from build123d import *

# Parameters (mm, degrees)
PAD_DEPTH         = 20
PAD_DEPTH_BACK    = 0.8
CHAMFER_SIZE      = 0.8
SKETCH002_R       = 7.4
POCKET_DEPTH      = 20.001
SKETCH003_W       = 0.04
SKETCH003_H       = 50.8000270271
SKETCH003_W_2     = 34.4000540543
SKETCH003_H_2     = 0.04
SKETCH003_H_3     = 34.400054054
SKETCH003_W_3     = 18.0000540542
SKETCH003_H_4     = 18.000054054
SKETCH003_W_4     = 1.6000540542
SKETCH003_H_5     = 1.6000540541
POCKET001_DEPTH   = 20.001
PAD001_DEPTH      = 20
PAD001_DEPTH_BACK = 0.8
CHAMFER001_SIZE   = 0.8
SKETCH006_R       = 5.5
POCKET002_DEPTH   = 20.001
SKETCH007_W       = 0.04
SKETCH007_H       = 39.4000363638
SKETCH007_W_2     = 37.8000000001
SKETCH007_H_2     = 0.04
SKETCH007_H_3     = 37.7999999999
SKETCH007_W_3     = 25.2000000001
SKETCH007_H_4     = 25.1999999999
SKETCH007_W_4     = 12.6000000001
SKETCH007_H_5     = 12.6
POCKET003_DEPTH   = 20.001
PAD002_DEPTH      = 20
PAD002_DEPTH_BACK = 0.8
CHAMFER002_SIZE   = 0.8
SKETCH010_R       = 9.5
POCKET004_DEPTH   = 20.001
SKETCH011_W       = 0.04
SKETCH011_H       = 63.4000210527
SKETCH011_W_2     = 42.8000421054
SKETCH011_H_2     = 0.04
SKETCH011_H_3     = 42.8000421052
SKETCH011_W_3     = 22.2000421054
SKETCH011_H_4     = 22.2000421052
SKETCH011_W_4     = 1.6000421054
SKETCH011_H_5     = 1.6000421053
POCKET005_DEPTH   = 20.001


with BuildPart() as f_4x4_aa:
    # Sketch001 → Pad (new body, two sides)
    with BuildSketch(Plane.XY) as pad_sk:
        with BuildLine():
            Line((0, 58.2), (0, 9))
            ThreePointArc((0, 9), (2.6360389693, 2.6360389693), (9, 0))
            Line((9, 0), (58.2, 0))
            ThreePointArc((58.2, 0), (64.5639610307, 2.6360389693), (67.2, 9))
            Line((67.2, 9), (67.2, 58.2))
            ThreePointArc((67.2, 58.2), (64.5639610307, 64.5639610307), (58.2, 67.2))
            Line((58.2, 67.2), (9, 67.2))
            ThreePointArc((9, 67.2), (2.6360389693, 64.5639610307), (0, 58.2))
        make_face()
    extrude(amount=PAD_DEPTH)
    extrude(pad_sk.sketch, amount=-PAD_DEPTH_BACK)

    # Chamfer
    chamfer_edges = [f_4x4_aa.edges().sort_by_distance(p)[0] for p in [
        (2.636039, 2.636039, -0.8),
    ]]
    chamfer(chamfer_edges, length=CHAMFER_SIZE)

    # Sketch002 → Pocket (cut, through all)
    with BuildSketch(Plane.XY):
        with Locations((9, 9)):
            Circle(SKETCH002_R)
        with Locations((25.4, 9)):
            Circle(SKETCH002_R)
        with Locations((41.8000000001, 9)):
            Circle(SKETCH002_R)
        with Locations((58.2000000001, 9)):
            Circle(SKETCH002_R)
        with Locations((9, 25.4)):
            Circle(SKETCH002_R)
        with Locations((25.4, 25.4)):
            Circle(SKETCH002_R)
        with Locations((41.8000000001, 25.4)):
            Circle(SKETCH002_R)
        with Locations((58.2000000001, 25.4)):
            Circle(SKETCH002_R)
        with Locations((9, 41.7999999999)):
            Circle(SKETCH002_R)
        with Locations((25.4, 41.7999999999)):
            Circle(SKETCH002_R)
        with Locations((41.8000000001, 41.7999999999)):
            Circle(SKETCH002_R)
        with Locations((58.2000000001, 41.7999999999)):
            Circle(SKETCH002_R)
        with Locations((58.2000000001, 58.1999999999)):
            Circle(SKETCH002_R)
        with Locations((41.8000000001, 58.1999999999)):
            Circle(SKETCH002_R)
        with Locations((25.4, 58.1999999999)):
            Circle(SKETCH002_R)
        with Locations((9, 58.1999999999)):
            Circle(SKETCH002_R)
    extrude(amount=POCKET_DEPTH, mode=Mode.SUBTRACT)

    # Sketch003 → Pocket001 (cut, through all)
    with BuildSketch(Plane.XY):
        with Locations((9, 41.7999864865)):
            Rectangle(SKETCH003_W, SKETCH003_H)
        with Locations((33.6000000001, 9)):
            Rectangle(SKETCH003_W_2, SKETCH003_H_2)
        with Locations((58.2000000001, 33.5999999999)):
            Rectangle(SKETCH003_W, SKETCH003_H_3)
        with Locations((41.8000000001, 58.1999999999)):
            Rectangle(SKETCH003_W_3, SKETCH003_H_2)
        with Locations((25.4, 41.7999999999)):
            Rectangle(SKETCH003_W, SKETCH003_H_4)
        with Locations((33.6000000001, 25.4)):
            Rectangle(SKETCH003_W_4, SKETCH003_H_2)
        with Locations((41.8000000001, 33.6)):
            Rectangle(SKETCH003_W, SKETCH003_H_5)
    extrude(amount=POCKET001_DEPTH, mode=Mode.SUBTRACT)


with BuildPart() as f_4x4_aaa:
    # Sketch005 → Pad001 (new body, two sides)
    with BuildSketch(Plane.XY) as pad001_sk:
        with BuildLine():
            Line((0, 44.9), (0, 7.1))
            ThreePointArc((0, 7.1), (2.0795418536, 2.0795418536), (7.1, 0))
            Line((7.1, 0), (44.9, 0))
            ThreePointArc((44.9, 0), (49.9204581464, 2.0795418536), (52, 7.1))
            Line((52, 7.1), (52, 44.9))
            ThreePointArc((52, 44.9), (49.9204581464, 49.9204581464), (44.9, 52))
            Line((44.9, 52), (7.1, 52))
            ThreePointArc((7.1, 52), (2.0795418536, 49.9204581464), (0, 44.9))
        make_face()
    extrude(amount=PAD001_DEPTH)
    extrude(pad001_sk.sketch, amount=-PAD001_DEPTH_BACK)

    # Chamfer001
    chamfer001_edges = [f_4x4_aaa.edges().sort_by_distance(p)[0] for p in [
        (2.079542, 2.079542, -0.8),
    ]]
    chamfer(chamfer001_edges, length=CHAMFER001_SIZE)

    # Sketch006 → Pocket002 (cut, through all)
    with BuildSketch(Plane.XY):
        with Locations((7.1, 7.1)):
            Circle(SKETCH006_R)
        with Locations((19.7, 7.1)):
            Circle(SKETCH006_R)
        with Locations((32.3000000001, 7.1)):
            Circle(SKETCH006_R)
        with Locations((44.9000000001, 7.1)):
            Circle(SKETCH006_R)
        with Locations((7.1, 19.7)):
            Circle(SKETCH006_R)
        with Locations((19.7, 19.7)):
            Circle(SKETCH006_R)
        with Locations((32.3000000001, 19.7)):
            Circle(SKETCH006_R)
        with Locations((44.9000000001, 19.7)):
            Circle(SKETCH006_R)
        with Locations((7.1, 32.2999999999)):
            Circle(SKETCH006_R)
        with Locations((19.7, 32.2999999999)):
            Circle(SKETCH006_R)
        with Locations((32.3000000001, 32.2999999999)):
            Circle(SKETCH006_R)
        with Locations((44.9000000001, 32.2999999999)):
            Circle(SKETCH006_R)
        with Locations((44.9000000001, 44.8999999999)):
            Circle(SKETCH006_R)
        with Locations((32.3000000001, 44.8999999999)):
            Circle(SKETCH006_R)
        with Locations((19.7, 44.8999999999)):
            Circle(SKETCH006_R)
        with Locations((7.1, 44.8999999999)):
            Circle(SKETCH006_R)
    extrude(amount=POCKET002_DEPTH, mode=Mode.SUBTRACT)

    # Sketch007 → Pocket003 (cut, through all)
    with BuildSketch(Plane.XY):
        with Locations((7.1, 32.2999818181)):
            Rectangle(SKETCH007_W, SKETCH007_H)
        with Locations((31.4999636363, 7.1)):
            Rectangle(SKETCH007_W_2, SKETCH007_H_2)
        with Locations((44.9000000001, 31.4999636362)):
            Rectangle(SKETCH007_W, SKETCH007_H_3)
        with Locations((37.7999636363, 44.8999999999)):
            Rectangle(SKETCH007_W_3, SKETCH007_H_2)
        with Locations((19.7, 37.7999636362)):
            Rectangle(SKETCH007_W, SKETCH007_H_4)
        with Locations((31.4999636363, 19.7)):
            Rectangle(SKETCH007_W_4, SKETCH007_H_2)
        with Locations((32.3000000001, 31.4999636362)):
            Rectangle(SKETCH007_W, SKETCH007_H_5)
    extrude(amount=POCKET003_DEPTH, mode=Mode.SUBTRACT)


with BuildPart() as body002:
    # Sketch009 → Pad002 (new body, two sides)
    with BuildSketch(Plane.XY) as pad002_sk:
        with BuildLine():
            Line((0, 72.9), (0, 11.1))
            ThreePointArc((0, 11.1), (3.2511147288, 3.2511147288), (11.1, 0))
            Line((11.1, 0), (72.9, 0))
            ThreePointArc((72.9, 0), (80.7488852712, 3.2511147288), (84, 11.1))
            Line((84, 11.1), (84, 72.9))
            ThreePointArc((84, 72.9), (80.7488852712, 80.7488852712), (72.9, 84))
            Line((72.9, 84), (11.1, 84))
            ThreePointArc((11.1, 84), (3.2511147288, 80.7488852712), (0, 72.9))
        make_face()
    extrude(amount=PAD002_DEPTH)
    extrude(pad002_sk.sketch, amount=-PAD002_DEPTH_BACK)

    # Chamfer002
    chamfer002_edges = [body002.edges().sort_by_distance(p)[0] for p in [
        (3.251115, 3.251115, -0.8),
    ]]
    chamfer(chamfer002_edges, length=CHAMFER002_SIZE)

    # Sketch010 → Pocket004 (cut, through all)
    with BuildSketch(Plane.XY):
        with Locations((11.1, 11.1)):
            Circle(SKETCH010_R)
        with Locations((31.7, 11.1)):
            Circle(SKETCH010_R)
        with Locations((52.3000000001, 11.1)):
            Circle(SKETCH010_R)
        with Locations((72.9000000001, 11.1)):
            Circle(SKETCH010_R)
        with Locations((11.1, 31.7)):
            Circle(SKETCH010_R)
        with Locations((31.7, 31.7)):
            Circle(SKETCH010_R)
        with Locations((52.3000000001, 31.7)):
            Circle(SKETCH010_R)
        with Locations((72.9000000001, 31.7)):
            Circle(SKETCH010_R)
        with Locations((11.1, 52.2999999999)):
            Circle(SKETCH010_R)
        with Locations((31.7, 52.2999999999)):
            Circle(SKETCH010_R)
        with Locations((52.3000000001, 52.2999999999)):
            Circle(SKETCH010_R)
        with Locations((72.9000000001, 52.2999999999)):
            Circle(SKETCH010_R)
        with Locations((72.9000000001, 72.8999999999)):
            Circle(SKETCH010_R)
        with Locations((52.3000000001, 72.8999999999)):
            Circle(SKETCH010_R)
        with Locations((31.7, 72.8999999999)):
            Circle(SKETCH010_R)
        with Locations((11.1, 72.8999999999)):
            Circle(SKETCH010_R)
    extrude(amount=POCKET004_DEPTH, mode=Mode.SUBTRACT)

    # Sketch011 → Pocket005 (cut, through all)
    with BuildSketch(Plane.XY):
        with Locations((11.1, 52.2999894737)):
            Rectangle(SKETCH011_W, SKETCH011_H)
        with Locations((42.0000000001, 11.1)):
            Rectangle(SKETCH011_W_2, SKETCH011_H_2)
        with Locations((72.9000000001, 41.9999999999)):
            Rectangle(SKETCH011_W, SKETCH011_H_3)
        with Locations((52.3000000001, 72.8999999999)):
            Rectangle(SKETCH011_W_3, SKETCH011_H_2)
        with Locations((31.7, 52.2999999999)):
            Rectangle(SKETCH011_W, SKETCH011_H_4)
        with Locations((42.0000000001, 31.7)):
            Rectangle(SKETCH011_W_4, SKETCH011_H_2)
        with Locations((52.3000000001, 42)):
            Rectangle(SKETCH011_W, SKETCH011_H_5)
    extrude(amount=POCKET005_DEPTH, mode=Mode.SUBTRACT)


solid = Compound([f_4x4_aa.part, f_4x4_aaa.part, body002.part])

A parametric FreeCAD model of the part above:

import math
import FreeCAD as App
import Part
import Sketcher

V = App.Vector


def edges_at(feature, points):
    """Names of the edges that pass closest to the given points."""
    edges = feature.Shape.Edges
    near = lambda p: min(range(len(edges)), key=lambda i: edges[i].distToShape(Part.Vertex(*p))[0])
    return sorted({f"Edge{near(p) + 1}" for p in points})

doc = App.newDocument("Part")
body = doc.addObject("PartDesign::Body", "Body")

sketch1 = doc.addObject("Sketcher::SketchObject", "Sketch")
body.addObject(sketch1)
sketch1.AttachmentSupport = (doc.XY_Plane, [""])
sketch1.MapMode = "FlatFace"
sketch1.addGeometry([
    Part.LineSegment(V(0, 58.2, 0), V(0, 9, 0)),
    Part.ArcOfCircle(Part.Circle(V(9, 9, 0), V(0, 0, 1), 9), math.radians(180), math.radians(270)),
    Part.LineSegment(V(9, 0, 0), V(58.2, 0, 0)),
    Part.ArcOfCircle(Part.Circle(V(58.2, 9, 0), V(0, 0, 1), 9), math.radians(-90), math.radians(0)),
    Part.LineSegment(V(67.2, 9, 0), V(67.2, 58.2, 0)),
    Part.ArcOfCircle(Part.Circle(V(58.2, 58.2, 0), V(0, 0, 1), 9), math.radians(0), math.radians(90)),
    Part.LineSegment(V(58.2, 67.2, 0), V(9, 67.2, 0)),
    Part.ArcOfCircle(Part.Circle(V(9, 58.2, 0), V(0, 0, 1), 9), math.radians(90), math.radians(180)),
], False)
sketch1.addConstraint([
    Sketcher.Constraint("Tangent", 0, 2, 1, 1),
    Sketcher.Constraint("Tangent", 1, 2, 2, 1),
    Sketcher.Constraint("Tangent", 2, 2, 3, 1),
    Sketcher.Constraint("Tangent", 3, 2, 4, 1),
    Sketcher.Constraint("Tangent", 4, 2, 5, 1),
    Sketcher.Constraint("Tangent", 5, 2, 6, 1),
    Sketcher.Constraint("Tangent", 6, 2, 7, 1),
    Sketcher.Constraint("Tangent", 7, 2, 0, 1),
    Sketcher.Constraint("Vertical", 0),
    Sketcher.Constraint("Horizontal", 2),
    Sketcher.Constraint("Vertical", 4),
    Sketcher.Constraint("Horizontal", 6),
    Sketcher.Constraint("Equal", 1, 3),
    Sketcher.Constraint("Equal", 3, 5),
    Sketcher.Constraint("Equal", 5, 7),
    Sketcher.Constraint("PointOnObject", 0, 2, -2),
    Sketcher.Constraint("PointOnObject", 1, 2, -1),
    Sketcher.Constraint("Equal", 6, 0),
    Sketcher.Constraint("Radius", 1, 9.0),
    Sketcher.Constraint("DistanceX", 2, 1, 2, 2, 49.2),
])
pad1 = doc.addObject("PartDesign::Pad", "Pad")
body.addObject(pad1)
pad1.Profile = sketch1
pad1.Type = "TwoLengths"
pad1.Length = 20
pad1.Length2 = 0.8
doc.recompute()

chamfer = doc.addObject("PartDesign::Chamfer", "Chamfer")
body.addObject(chamfer)
chamfer.Base = (pad1, edges_at(pad1, [(2.636, 2.636, -0.8)]))
chamfer.Size = 0.8

sketch2 = doc.addObject("Sketcher::SketchObject", "Sketch001")
body.addObject(sketch2)
sketch2.AttachmentSupport = (doc.XY_Plane, [""])
sketch2.MapMode = "FlatFace"
sketch2.addGeometry([
    Part.Circle(V(9, 9, 0), V(0, 0, 1), 7.4),
    Part.Circle(V(25.4, 9, 0), V(0, 0, 1), 7.4),
    Part.Circle(V(41.8, 9, 0), V(0, 0, 1), 7.4),
    Part.Circle(V(58.2, 9, 0), V(0, 0, 1), 7.4),
    Part.Circle(V(9, 25.4, 0), V(0, 0, 1), 7.4),
    Part.Circle(V(25.4, 25.4, 0), V(0, 0, 1), 7.4),
    Part.Circle(V(41.8, 25.4, 0), V(0, 0, 1), 7.4),
    Part.Circle(V(58.2, 25.4, 0), V(0, 0, 1), 7.4),
    Part.Circle(V(9, 41.8, 0), V(0, 0, 1), 7.4),
    Part.Circle(V(25.4, 41.8, 0), V(0, 0, 1), 7.4),
    Part.Circle(V(41.8, 41.8, 0), V(0, 0, 1), 7.4),
    Part.Circle(V(58.2, 41.8, 0), V(0, 0, 1), 7.4),
    Part.Circle(V(58.2, 58.2, 0), V(0, 0, 1), 7.4),
    Part.Circle(V(41.8, 58.2, 0), V(0, 0, 1), 7.4),
    Part.Circle(V(25.4, 58.2, 0), V(0, 0, 1), 7.4),
    Part.Circle(V(9, 58.2, 0), V(0, 0, 1), 7.4),
], False)
sketch2.addConstraint([
    Sketcher.Constraint("Equal", 0, 1),
    Sketcher.Constraint("Equal", 1, 2),
    Sketcher.Constraint("Equal", 2, 3),
    Sketcher.Constraint("Equal", 3, 4),
    Sketcher.Constraint("Equal", 4, 5),
    Sketcher.Constraint("Equal", 5, 6),
    Sketcher.Constraint("Equal", 6, 7),
    Sketcher.Constraint("Equal", 7, 8),
    Sketcher.Constraint("Equal", 8, 9),
    Sketcher.Constraint("Equal", 9, 10),
    Sketcher.Constraint("Equal", 10, 11),
    Sketcher.Constraint("Equal", 11, 12),
    Sketcher.Constraint("Equal", 12, 13),
    Sketcher.Constraint("Equal", 13, 14),
    Sketcher.Constraint("Equal", 14, 15),
    Sketcher.Constraint("Horizontal", 0, 3, 1, 3),
    Sketcher.Constraint("Horizontal", 1, 3, 2, 3),
    Sketcher.Constraint("Horizontal", 2, 3, 3, 3),
    Sketcher.Constraint("Horizontal", 4, 3, 5, 3),
    Sketcher.Constraint("Horizontal", 5, 3, 6, 3),
    Sketcher.Constraint("Horizontal", 6, 3, 7, 3),
    Sketcher.Constraint("Horizontal", 8, 3, 9, 3),
    Sketcher.Constraint("Horizontal", 9, 3, 10, 3),
    Sketcher.Constraint("Horizontal", 10, 3, 11, 3),
    Sketcher.Constraint("Horizontal", 12, 3, 13, 3),
    Sketcher.Constraint("Horizontal", 13, 3, 14, 3),
    Sketcher.Constraint("Horizontal", 14, 3, 15, 3),
    Sketcher.Constraint("Vertical", 0, 3, 4, 3),
    Sketcher.Constraint("Vertical", 1, 3, 5, 3),
    Sketcher.Constraint("Vertical", 2, 3, 6, 3),
    Sketcher.Constraint("Vertical", 3, 3, 7, 3),
    Sketcher.Constraint("Vertical", 4, 3, 8, 3),
    Sketcher.Constraint("Vertical", 5, 3, 9, 3),
    Sketcher.Constraint("Vertical", 6, 3, 10, 3),
    Sketcher.Constraint("Vertical", 7, 3, 11, 3),
    Sketcher.Constraint("Vertical", 11, 3, 12, 3),
    Sketcher.Constraint("Vertical", 10, 3, 13, 3),
    Sketcher.Constraint("Vertical", 9, 3, 14, 3),
    Sketcher.Constraint("Vertical", 8, 3, 15, 3),
    Sketcher.Constraint("Diameter", 0, 14.8),
    Sketcher.Constraint("DistanceX", -1, 1, 0, 3, 9.0),
    Sketcher.Constraint("DistanceY", -1, 1, 0, 3, 9.0),
    Sketcher.Constraint("DistanceX", -1, 1, 1, 3, 25.4),
    Sketcher.Constraint("DistanceX", -1, 1, 2, 3, 41.8),
    Sketcher.Constraint("DistanceX", -1, 1, 3, 3, 58.2),
    Sketcher.Constraint("DistanceY", -1, 1, 4, 3, 25.4),
    Sketcher.Constraint("DistanceY", -1, 1, 8, 3, 41.8),
    Sketcher.Constraint("DistanceY", -1, 1, 12, 3, 58.2),
])
pocket1 = doc.addObject("PartDesign::Pocket", "Pocket")
body.addObject(pocket1)
pocket1.Profile = sketch2
pocket1.Type = "ThroughAll"
pocket1.Reversed = True

sketch3 = doc.addObject("Sketcher::SketchObject", "Sketch002")
body.addObject(sketch3)
sketch3.AttachmentSupport = (doc.XY_Plane, [""])
sketch3.MapMode = "FlatFace"
sketch3.addGeometry([
    Part.LineSegment(V(8.98, 67.2, 0), V(8.98, 16.399973, 0)),
    Part.LineSegment(V(8.98, 16.399973, 0), V(9.02, 16.399973, 0)),
    Part.LineSegment(V(9.02, 16.399973, 0), V(9.02, 67.2, 0)),
    Part.LineSegment(V(9.02, 67.2, 0), V(8.98, 67.2, 0)),
    Part.LineSegment(V(16.399973, 9.02, 0), V(16.399973, 8.98, 0)),
    Part.LineSegment(V(16.399973, 8.98, 0), V(50.800027, 8.98, 0)),
    Part.LineSegment(V(50.800027, 8.98, 0), V(50.800027, 9.02, 0)),
    Part.LineSegment(V(50.800027, 9.02, 0), V(16.399973, 9.02, 0)),
    Part.LineSegment(V(58.18, 50.800027, 0), V(58.18, 16.399973, 0)),
    Part.LineSegment(V(58.18, 16.399973, 0), V(58.22, 16.399973, 0)),
    Part.LineSegment(V(58.22, 16.399973, 0), V(58.22, 50.800027, 0)),
    Part.LineSegment(V(58.22, 50.800027, 0), V(58.18, 50.800027, 0)),
    Part.LineSegment(V(32.799973, 58.22, 0), V(32.799973, 58.18, 0)),
    Part.LineSegment(V(32.799973, 58.18, 0), V(50.800027, 58.18, 0)),
    Part.LineSegment(V(50.800027, 58.18, 0), V(50.800027, 58.22, 0)),
    Part.LineSegment(V(50.800027, 58.22, 0), V(32.799973, 58.22, 0)),
    Part.LineSegment(V(25.38, 50.800027, 0), V(25.38, 32.799973, 0)),
    Part.LineSegment(V(25.38, 32.799973, 0), V(25.42, 32.799973, 0)),
    Part.LineSegment(V(25.42, 32.799973, 0), V(25.42, 50.800027, 0)),
    Part.LineSegment(V(25.42, 50.800027, 0), V(25.38, 50.800027, 0)),
    Part.LineSegment(V(32.799973, 25.42, 0), V(32.799973, 25.38, 0)),
    Part.LineSegment(V(32.799973, 25.38, 0), V(34.400027, 25.38, 0)),
    Part.LineSegment(V(34.400027, 25.38, 0), V(34.400027, 25.42, 0)),
    Part.LineSegment(V(34.400027, 25.42, 0), V(32.799973, 25.42, 0)),
    Part.LineSegment(V(41.78, 34.400027, 0), V(41.78, 32.799973, 0)),
    Part.LineSegment(V(41.78, 32.799973, 0), V(41.82, 32.799973, 0)),
    Part.LineSegment(V(41.82, 32.799973, 0), V(41.82, 34.400027, 0)),
    Part.LineSegment(V(41.82, 34.400027, 0), V(41.78, 34.400027, 0)),
], False)
sketch3.addConstraint([
    Sketcher.Constraint("Coincident", 0, 2, 1, 1),
    Sketcher.Constraint("Coincident", 1, 2, 2, 1),
    Sketcher.Constraint("Coincident", 2, 2, 3, 1),
    Sketcher.Constraint("Coincident", 3, 2, 0, 1),
    Sketcher.Constraint("Coincident", 4, 2, 5, 1),
    Sketcher.Constraint("Coincident", 5, 2, 6, 1),
    Sketcher.Constraint("Coincident", 6, 2, 7, 1),
    Sketcher.Constraint("Coincident", 7, 2, 4, 1),
    Sketcher.Constraint("Coincident", 8, 2, 9, 1),
    Sketcher.Constraint("Coincident", 9, 2, 10, 1),
    Sketcher.Constraint("Coincident", 10, 2, 11, 1),
    Sketcher.Constraint("Coincident", 11, 2, 8, 1),
    Sketcher.Constraint("Coincident", 12, 2, 13, 1),
    Sketcher.Constraint("Coincident", 13, 2, 14, 1),
    Sketcher.Constraint("Coincident", 14, 2, 15, 1),
    Sketcher.Constraint("Coincident", 15, 2, 12, 1),
    Sketcher.Constraint("Coincident", 16, 2, 17, 1),
    Sketcher.Constraint("Coincident", 17, 2, 18, 1),
    Sketcher.Constraint("Coincident", 18, 2, 19, 1),
    Sketcher.Constraint("Coincident", 19, 2, 16, 1),
    Sketcher.Constraint("Coincident", 20, 2, 21, 1),
    Sketcher.Constraint("Coincident", 21, 2, 22, 1),
    Sketcher.Constraint("Coincident", 22, 2, 23, 1),
    Sketcher.Constraint("Coincident", 23, 2, 20, 1),
    Sketcher.Constraint("Coincident", 24, 2, 25, 1),
    Sketcher.Constraint("Coincident", 25, 2, 26, 1),
    Sketcher.Constraint("Coincident", 26, 2, 27, 1),
    Sketcher.Constraint("Coincident", 27, 2, 24, 1),
    Sketcher.Constraint("Vertical", 0),
    Sketcher.Constraint("Horizontal", 1),
    Sketcher.Constraint("Vertical", 2),
    Sketcher.Constraint("Horizontal", 3),
    Sketcher.Constraint("Vertical", 4),
    Sketcher.Constraint("Horizontal", 5),
    Sketcher.Constraint("Vertical", 6),
    Sketcher.Constraint("Horizontal", 7),
    Sketcher.Constraint("Vertical", 8),
    Sketcher.Constraint("Horizontal", 9),
    Sketcher.Constraint("Vertical", 10),
    Sketcher.Constraint("Horizontal", 11),
    Sketcher.Constraint("Vertical", 12),
    Sketcher.Constraint("Horizontal", 13),
    Sketcher.Constraint("Vertical", 14),
    Sketcher.Constraint("Horizontal", 15),
    Sketcher.Constraint("Vertical", 16),
    Sketcher.Constraint("Horizontal", 17),
    Sketcher.Constraint("Vertical", 18),
    Sketcher.Constraint("Horizontal", 19),
    Sketcher.Constraint("Vertical", 20),
    Sketcher.Constraint("Horizontal", 21),
    Sketcher.Constraint("Vertical", 22),
    Sketcher.Constraint("Horizontal", 23),
    Sketcher.Constraint("Vertical", 24),
    Sketcher.Constraint("Horizontal", 25),
    Sketcher.Constraint("Vertical", 26),
    Sketcher.Constraint("Horizontal", 27),
    Sketcher.Constraint("Horizontal", 1, 2, 8, 2),
    Sketcher.Constraint("Horizontal", 11, 2, 18, 2),
    Sketcher.Constraint("Horizontal", 17, 2, 24, 2),
    Sketcher.Constraint("Vertical", 6, 2, 13, 2),
    Sketcher.Constraint("Vertical", 15, 2, 20, 2),
    Sketcher.Constraint("Equal", 3, 9),
    Sketcher.Constraint("Equal", 11, 17),
    Sketcher.Constraint("Equal", 19, 25),
    Sketcher.Constraint("Equal", 27, 4),
    Sketcher.Constraint("Equal", 7, 8),
    Sketcher.Constraint("Equal", 6, 12),
    Sketcher.Constraint("Equal", 15, 16),
    Sketcher.Constraint("Equal", 14, 20),
    Sketcher.Constraint("Equal", 23, 24),
    Sketcher.Constraint("DistanceX", 1, 1, 1, 2, 0.04),
    Sketcher.Constraint("DistanceY", -1, 1, 2, 2, 67.2),
    Sketcher.Constraint("DistanceX", 2, 2, 10, 2, 49.2),
    Sketcher.Constraint("DistanceY", 1, 2, 16, 2, 16.4),
    Sketcher.Constraint("DistanceX", 0, 2, 16, 2, 16.4),
    Sketcher.Constraint("DistanceY", 4, 2, 20, 2, 16.4),
    Sketcher.Constraint("DistanceX", 21, 2, 6, 2, 16.4),
    Sketcher.Constraint("DistanceX", -1, 1, 0, 2, 8.98),
    Sketcher.Constraint("DistanceY", -1, 1, 4, 2, 8.98),
    Sketcher.Constraint("DistanceY", -1, 1, 12, 2, 58.18),
    Sketcher.Constraint("DistanceX", -1, 1, 24, 2, 41.78),
    Sketcher.Constraint("DistanceX", 5, 1, 5, 2, 34.400054),
    Sketcher.Constraint("DistanceY", 0, 2, 0, 1, 50.800027),
    Sketcher.Constraint("DistanceX", -1, 1, 4, 2, 16.399973),
])
pocket2 = doc.addObject("PartDesign::Pocket", "Pocket001")
body.addObject(pocket2)
pocket2.Profile = sketch3
pocket2.Type = "ThroughAll"
pocket2.Reversed = True
body2 = doc.addObject("PartDesign::Body", "Body001")

sketch4 = doc.addObject("Sketcher::SketchObject", "Sketch003")
body2.addObject(sketch4)
sketch4.AttachmentSupport = (doc.getObject("XY_Plane001"), [""])
sketch4.MapMode = "FlatFace"
sketch4.addGeometry([
    Part.LineSegment(V(0, 44.9, 0), V(0, 7.1, 0)),
    Part.ArcOfCircle(Part.Circle(V(7.1, 7.1, 0), V(0, 0, 1), 7.1), math.radians(180), math.radians(270)),
    Part.LineSegment(V(7.1, 0, 0), V(44.9, 0, 0)),
    Part.ArcOfCircle(Part.Circle(V(44.9, 7.1, 0), V(0, 0, 1), 7.1), math.radians(-90), math.radians(0)),
    Part.LineSegment(V(52, 7.1, 0), V(52, 44.9, 0)),
    Part.ArcOfCircle(Part.Circle(V(44.9, 44.9, 0), V(0, 0, 1), 7.1), math.radians(0), math.radians(90)),
    Part.LineSegment(V(44.9, 52, 0), V(7.1, 52, 0)),
    Part.ArcOfCircle(Part.Circle(V(7.1, 44.9, 0), V(0, 0, 1), 7.1), math.radians(90), math.radians(180)),
], False)
sketch4.addConstraint([
    Sketcher.Constraint("Tangent", 0, 2, 1, 1),
    Sketcher.Constraint("Tangent", 1, 2, 2, 1),
    Sketcher.Constraint("Tangent", 2, 2, 3, 1),
    Sketcher.Constraint("Tangent", 3, 2, 4, 1),
    Sketcher.Constraint("Tangent", 4, 2, 5, 1),
    Sketcher.Constraint("Tangent", 5, 2, 6, 1),
    Sketcher.Constraint("Tangent", 6, 2, 7, 1),
    Sketcher.Constraint("Tangent", 7, 2, 0, 1),
    Sketcher.Constraint("Vertical", 0),
    Sketcher.Constraint("Horizontal", 2),
    Sketcher.Constraint("Vertical", 4),
    Sketcher.Constraint("Horizontal", 6),
    Sketcher.Constraint("Equal", 1, 3),
    Sketcher.Constraint("Equal", 3, 5),
    Sketcher.Constraint("Equal", 5, 7),
    Sketcher.Constraint("PointOnObject", 0, 2, -2),
    Sketcher.Constraint("PointOnObject", 1, 2, -1),
    Sketcher.Constraint("Equal", 6, 0),
    Sketcher.Constraint("Radius", 1, 7.1),
    Sketcher.Constraint("DistanceX", 2, 1, 2, 2, 37.8),
])
pad2 = doc.addObject("PartDesign::Pad", "Pad001")
body2.addObject(pad2)
pad2.Profile = sketch4
pad2.Type = "TwoLengths"
pad2.Length = 20
pad2.Length2 = 0.8
doc.recompute()

chamfer2 = doc.addObject("PartDesign::Chamfer", "Chamfer001")
body2.addObject(chamfer2)
chamfer2.Base = (pad2, edges_at(pad2, [(2.08, 2.08, -0.8)]))
chamfer2.Size = 0.8

sketch5 = doc.addObject("Sketcher::SketchObject", "Sketch004")
body2.addObject(sketch5)
sketch5.AttachmentSupport = (doc.getObject("XY_Plane001"), [""])
sketch5.MapMode = "FlatFace"
sketch5.addGeometry([
    Part.Circle(V(7.1, 7.1, 0), V(0, 0, 1), 5.5),
    Part.Circle(V(19.7, 7.1, 0), V(0, 0, 1), 5.5),
    Part.Circle(V(32.3, 7.1, 0), V(0, 0, 1), 5.5),
    Part.Circle(V(44.9, 7.1, 0), V(0, 0, 1), 5.5),
    Part.Circle(V(7.1, 19.7, 0), V(0, 0, 1), 5.5),
    Part.Circle(V(19.7, 19.7, 0), V(0, 0, 1), 5.5),
    Part.Circle(V(32.3, 19.7, 0), V(0, 0, 1), 5.5),
    Part.Circle(V(44.9, 19.7, 0), V(0, 0, 1), 5.5),
    Part.Circle(V(7.1, 32.3, 0), V(0, 0, 1), 5.5),
    Part.Circle(V(19.7, 32.3, 0), V(0, 0, 1), 5.5),
    Part.Circle(V(32.3, 32.3, 0), V(0, 0, 1), 5.5),
    Part.Circle(V(44.9, 32.3, 0), V(0, 0, 1), 5.5),
    Part.Circle(V(44.9, 44.9, 0), V(0, 0, 1), 5.5),
    Part.Circle(V(32.3, 44.9, 0), V(0, 0, 1), 5.5),
    Part.Circle(V(19.7, 44.9, 0), V(0, 0, 1), 5.5),
    Part.Circle(V(7.1, 44.9, 0), V(0, 0, 1), 5.5),
], False)
sketch5.addConstraint([
    Sketcher.Constraint("Equal", 0, 1),
    Sketcher.Constraint("Equal", 1, 2),
    Sketcher.Constraint("Equal", 2, 3),
    Sketcher.Constraint("Equal", 3, 4),
    Sketcher.Constraint("Equal", 4, 5),
    Sketcher.Constraint("Equal", 5, 6),
    Sketcher.Constraint("Equal", 6, 7),
    Sketcher.Constraint("Equal", 7, 8),
    Sketcher.Constraint("Equal", 8, 9),
    Sketcher.Constraint("Equal", 9, 10),
    Sketcher.Constraint("Equal", 10, 11),
    Sketcher.Constraint("Equal", 11, 12),
    Sketcher.Constraint("Equal", 12, 13),
    Sketcher.Constraint("Equal", 13, 14),
    Sketcher.Constraint("Equal", 14, 15),
    Sketcher.Constraint("Horizontal", 0, 3, 1, 3),
    Sketcher.Constraint("Horizontal", 1, 3, 2, 3),
    Sketcher.Constraint("Horizontal", 2, 3, 3, 3),
    Sketcher.Constraint("Horizontal", 4, 3, 5, 3),
    Sketcher.Constraint("Horizontal", 5, 3, 6, 3),
    Sketcher.Constraint("Horizontal", 6, 3, 7, 3),
    Sketcher.Constraint("Horizontal", 8, 3, 9, 3),
    Sketcher.Constraint("Horizontal", 9, 3, 10, 3),
    Sketcher.Constraint("Horizontal", 10, 3, 11, 3),
    Sketcher.Constraint("Horizontal", 12, 3, 13, 3),
    Sketcher.Constraint("Horizontal", 13, 3, 14, 3),
    Sketcher.Constraint("Horizontal", 14, 3, 15, 3),
    Sketcher.Constraint("Vertical", 0, 3, 4, 3),
    Sketcher.Constraint("Vertical", 1, 3, 5, 3),
    Sketcher.Constraint("Vertical", 2, 3, 6, 3),
    Sketcher.Constraint("Vertical", 3, 3, 7, 3),
    Sketcher.Constraint("Vertical", 4, 3, 8, 3),
    Sketcher.Constraint("Vertical", 5, 3, 9, 3),
    Sketcher.Constraint("Vertical", 6, 3, 10, 3),
    Sketcher.Constraint("Vertical", 7, 3, 11, 3),
    Sketcher.Constraint("Vertical", 11, 3, 12, 3),
    Sketcher.Constraint("Vertical", 10, 3, 13, 3),
    Sketcher.Constraint("Vertical", 9, 3, 14, 3),
    Sketcher.Constraint("Vertical", 8, 3, 15, 3),
    Sketcher.Constraint("Diameter", 0, 11.0),
    Sketcher.Constraint("DistanceX", -1, 1, 0, 3, 7.1),
    Sketcher.Constraint("DistanceY", -1, 1, 0, 3, 7.1),
    Sketcher.Constraint("DistanceX", -1, 1, 1, 3, 19.7),
    Sketcher.Constraint("DistanceX", -1, 1, 2, 3, 32.3),
    Sketcher.Constraint("DistanceX", -1, 1, 3, 3, 44.9),
    Sketcher.Constraint("DistanceY", -1, 1, 4, 3, 19.7),
    Sketcher.Constraint("DistanceY", -1, 1, 8, 3, 32.3),
    Sketcher.Constraint("DistanceY", -1, 1, 12, 3, 44.9),
])
pocket3 = doc.addObject("PartDesign::Pocket", "Pocket002")
body2.addObject(pocket3)
pocket3.Profile = sketch5
pocket3.Type = "ThroughAll"
pocket3.Reversed = True

sketch6 = doc.addObject("Sketcher::SketchObject", "Sketch005")
body2.addObject(sketch6)
sketch6.AttachmentSupport = (doc.getObject("XY_Plane001"), [""])
sketch6.MapMode = "FlatFace"
sketch6.addGeometry([
    Part.LineSegment(V(7.08, 52, 0), V(7.08, 12.599964, 0)),
    Part.LineSegment(V(7.08, 12.599964, 0), V(7.12, 12.599964, 0)),
    Part.LineSegment(V(7.12, 12.599964, 0), V(7.12, 52, 0)),
    Part.LineSegment(V(7.12, 52, 0), V(7.08, 52, 0)),
    Part.LineSegment(V(12.599964, 7.12, 0), V(12.599964, 7.08, 0)),
    Part.LineSegment(V(12.599964, 7.08, 0), V(50.399964, 7.08, 0)),
    Part.LineSegment(V(50.399964, 7.08, 0), V(50.399964, 7.12, 0)),
    Part.LineSegment(V(50.399964, 7.12, 0), V(12.599964, 7.12, 0)),
    Part.LineSegment(V(44.88, 44.88, 0), V(44.88, 12.599964, 0)),
    Part.LineSegment(V(44.88, 12.599964, 0), V(44.92, 12.599964, 0)),
    Part.LineSegment(V(44.92, 12.599964, 0), V(44.92, 44.88, 0)),
    Part.LineSegment(V(44.92, 44.88, 0), V(50.399964, 44.88, 0)),
    Part.LineSegment(V(50.399964, 44.88, 0), V(50.399964, 44.92, 0)),
    Part.LineSegment(V(50.399964, 44.92, 0), V(44.92, 44.92, 0)),
    Part.LineSegment(V(44.92, 44.92, 0), V(44.92, 50.399964, 0)),
    Part.LineSegment(V(44.92, 50.399964, 0), V(44.88, 50.399964, 0)),
    Part.LineSegment(V(44.88, 50.399964, 0), V(44.88, 44.92, 0)),
    Part.LineSegment(V(44.88, 44.92, 0), V(25.199964, 44.92, 0)),
    Part.LineSegment(V(25.199964, 44.92, 0), V(25.199964, 44.88, 0)),
    Part.LineSegment(V(25.199964, 44.88, 0), V(44.88, 44.88, 0)),
    Part.LineSegment(V(19.68, 50.399964, 0), V(19.68, 25.199964, 0)),
    Part.LineSegment(V(19.68, 25.199964, 0), V(19.72, 25.199964, 0)),
    Part.LineSegment(V(19.72, 25.199964, 0), V(19.72, 50.399964, 0)),
    Part.LineSegment(V(19.72, 50.399964, 0), V(19.68, 50.399964, 0)),
    Part.LineSegment(V(25.199964, 19.72, 0), V(25.199964, 19.68, 0)),
    Part.LineSegment(V(25.199964, 19.68, 0), V(37.799964, 19.68, 0)),
    Part.LineSegment(V(37.799964, 19.68, 0), V(37.799964, 19.72, 0)),
    Part.LineSegment(V(37.799964, 19.72, 0), V(25.199964, 19.72, 0)),
    Part.LineSegment(V(32.28, 37.799964, 0), V(32.28, 25.199964, 0)),
    Part.LineSegment(V(32.28, 25.199964, 0), V(32.32, 25.199964, 0)),
    Part.LineSegment(V(32.32, 25.199964, 0), V(32.32, 37.799964, 0)),
    Part.LineSegment(V(32.32, 37.799964, 0), V(32.28, 37.799964, 0)),
], False)
sketch6.addConstraint([
    Sketcher.Constraint("Coincident", 0, 2, 1, 1),
    Sketcher.Constraint("Coincident", 1, 2, 2, 1),
    Sketcher.Constraint("Coincident", 2, 2, 3, 1),
    Sketcher.Constraint("Coincident", 3, 2, 0, 1),
    Sketcher.Constraint("Coincident", 4, 2, 5, 1),
    Sketcher.Constraint("Coincident", 5, 2, 6, 1),
    Sketcher.Constraint("Coincident", 6, 2, 7, 1),
    Sketcher.Constraint("Coincident", 7, 2, 4, 1),
    Sketcher.Constraint("Coincident", 8, 2, 9, 1),
    Sketcher.Constraint("Coincident", 9, 2, 10, 1),
    Sketcher.Constraint("Coincident", 10, 2, 11, 1),
    Sketcher.Constraint("Coincident", 11, 2, 12, 1),
    Sketcher.Constraint("Coincident", 12, 2, 13, 1),
    Sketcher.Constraint("Coincident", 13, 2, 14, 1),
    Sketcher.Constraint("Coincident", 14, 2, 15, 1),
    Sketcher.Constraint("Coincident", 15, 2, 16, 1),
    Sketcher.Constraint("Coincident", 16, 2, 17, 1),
    Sketcher.Constraint("Coincident", 17, 2, 18, 1),
    Sketcher.Constraint("Coincident", 18, 2, 19, 1),
    Sketcher.Constraint("Coincident", 19, 2, 8, 1),
    Sketcher.Constraint("Coincident", 20, 2, 21, 1),
    Sketcher.Constraint("Coincident", 21, 2, 22, 1),
    Sketcher.Constraint("Coincident", 22, 2, 23, 1),
    Sketcher.Constraint("Coincident", 23, 2, 20, 1),
    Sketcher.Constraint("Coincident", 24, 2, 25, 1),
    Sketcher.Constraint("Coincident", 25, 2, 26, 1),
    Sketcher.Constraint("Coincident", 26, 2, 27, 1),
    Sketcher.Constraint("Coincident", 27, 2, 24, 1),
    Sketcher.Constraint("Coincident", 28, 2, 29, 1),
    Sketcher.Constraint("Coincident", 29, 2, 30, 1),
    Sketcher.Constraint("Coincident", 30, 2, 31, 1),
    Sketcher.Constraint("Coincident", 31, 2, 28, 1),
    Sketcher.Constraint("Vertical", 0),
    Sketcher.Constraint("Horizontal", 1),
    Sketcher.Constraint("Vertical", 2),
    Sketcher.Constraint("Horizontal", 3),
    Sketcher.Constraint("Vertical", 4),
    Sketcher.Constraint("Horizontal", 5),
    Sketcher.Constraint("Vertical", 6),
    Sketcher.Constraint("Horizontal", 7),
    Sketcher.Constraint("Vertical", 8),
    Sketcher.Constraint("Horizontal", 9),
    Sketcher.Constraint("Vertical", 10),
    Sketcher.Constraint("Horizontal", 11),
    Sketcher.Constraint("Vertical", 12),
    Sketcher.Constraint("Horizontal", 13),
    Sketcher.Constraint("Vertical", 14),
    Sketcher.Constraint("Horizontal", 15),
    Sketcher.Constraint("Vertical", 16),
    Sketcher.Constraint("Horizontal", 17),
    Sketcher.Constraint("Vertical", 18),
    Sketcher.Constraint("Horizontal", 19),
    Sketcher.Constraint("Vertical", 20),
    Sketcher.Constraint("Horizontal", 21),
    Sketcher.Constraint("Vertical", 22),
    Sketcher.Constraint("Horizontal", 23),
    Sketcher.Constraint("Vertical", 24),
    Sketcher.Constraint("Horizontal", 25),
    Sketcher.Constraint("Vertical", 26),
    Sketcher.Constraint("Horizontal", 27),
    Sketcher.Constraint("Vertical", 28),
    Sketcher.Constraint("Horizontal", 29),
    Sketcher.Constraint("Vertical", 30),
    Sketcher.Constraint("Horizontal", 31),
    Sketcher.Constraint("Horizontal", 1, 2, 8, 2),
    Sketcher.Constraint("Horizontal", 13, 2, 16, 2),
    Sketcher.Constraint("Horizontal", 11, 2, 18, 2),
    Sketcher.Constraint("Horizontal", 15, 2, 22, 2),
    Sketcher.Constraint("Horizontal", 21, 2, 28, 2),
    Sketcher.Constraint("Vertical", 6, 2, 11, 2),
    Sketcher.Constraint("Vertical", 10, 2, 13, 2),
    Sketcher.Constraint("Vertical", 8, 2, 15, 2),
    Sketcher.Constraint("Vertical", 18, 2, 24, 2),
    Sketcher.Constraint("Equal", 3, 9),
    Sketcher.Constraint("Equal", 15, 21),
    Sketcher.Constraint("Equal", 23, 29),
    Sketcher.Constraint("Equal", 31, 4),
    Sketcher.Constraint("Equal", 6, 12),
    Sketcher.Constraint("Equal", 13, 14),
    Sketcher.Constraint("Equal", 18, 24),
    Sketcher.Constraint("Equal", 27, 28),
    Sketcher.Constraint("DistanceX", 5, 1, 5, 2, 37.8),
    Sketcher.Constraint("DistanceX", 25, 1, 25, 2, 12.6),
    Sketcher.Constraint("DistanceY", 20, 2, 20, 1, 25.2),
    Sketcher.Constraint("DistanceY", -1, 1, 2, 2, 52.0),
    Sketcher.Constraint("DistanceX", 1, 1, 1, 2, 0.04),
    Sketcher.Constraint("DistanceY", 5, 2, 10, 2, 37.8),
    Sketcher.Constraint("DistanceX", 2, 2, 10, 2, 37.8),
    Sketcher.Constraint("DistanceY", 9, 2, 14, 2, 37.8),
    Sketcher.Constraint("DistanceX", 0, 2, 20, 2, 12.6),
    Sketcher.Constraint("DistanceX", 7, 2, 24, 2, 12.6),
    Sketcher.Constraint("DistanceY", 4, 2, 24, 2, 12.6),
    Sketcher.Constraint("DistanceX", -1, 1, 0, 2, 7.08),
    Sketcher.Constraint("DistanceY", -1, 1, 4, 2, 7.08),
    Sketcher.Constraint("DistanceX", -1, 1, 28, 2, 32.28),
    Sketcher.Constraint("DistanceX", 11, 1, 11, 2, 5.479964),
])
pocket4 = doc.addObject("PartDesign::Pocket", "Pocket003")
body2.addObject(pocket4)
pocket4.Profile = sketch6
pocket4.Type = "ThroughAll"
pocket4.Reversed = True
body3 = doc.addObject("PartDesign::Body", "Body002")

sketch7 = doc.addObject("Sketcher::SketchObject", "Sketch006")
body3.addObject(sketch7)
sketch7.AttachmentSupport = (doc.getObject("XY_Plane002"), [""])
sketch7.MapMode = "FlatFace"
sketch7.addGeometry([
    Part.LineSegment(V(0, 72.9, 0), V(0, 11.1, 0)),
    Part.ArcOfCircle(Part.Circle(V(11.1, 11.1, 0), V(0, 0, 1), 11.1), math.radians(180), math.radians(270)),
    Part.LineSegment(V(11.1, 0, 0), V(72.9, 0, 0)),
    Part.ArcOfCircle(Part.Circle(V(72.9, 11.1, 0), V(0, 0, 1), 11.1), math.radians(-90), math.radians(0)),
    Part.LineSegment(V(84, 11.1, 0), V(84, 72.9, 0)),
    Part.ArcOfCircle(Part.Circle(V(72.9, 72.9, 0), V(0, 0, 1), 11.1), math.radians(0), math.radians(90)),
    Part.LineSegment(V(72.9, 84, 0), V(11.1, 84, 0)),
    Part.ArcOfCircle(Part.Circle(V(11.1, 72.9, 0), V(0, 0, 1), 11.1), math.radians(90), math.radians(180)),
], False)
sketch7.addConstraint([
    Sketcher.Constraint("Tangent", 0, 2, 1, 1),
    Sketcher.Constraint("Tangent", 1, 2, 2, 1),
    Sketcher.Constraint("Tangent", 2, 2, 3, 1),
    Sketcher.Constraint("Tangent", 3, 2, 4, 1),
    Sketcher.Constraint("Tangent", 4, 2, 5, 1),
    Sketcher.Constraint("Tangent", 5, 2, 6, 1),
    Sketcher.Constraint("Tangent", 6, 2, 7, 1),
    Sketcher.Constraint("Tangent", 7, 2, 0, 1),
    Sketcher.Constraint("Vertical", 0),
    Sketcher.Constraint("Horizontal", 2),
    Sketcher.Constraint("Vertical", 4),
    Sketcher.Constraint("Horizontal", 6),
    Sketcher.Constraint("Equal", 1, 3),
    Sketcher.Constraint("Equal", 3, 5),
    Sketcher.Constraint("Equal", 5, 7),
    Sketcher.Constraint("PointOnObject", 0, 2, -2),
    Sketcher.Constraint("PointOnObject", 1, 2, -1),
    Sketcher.Constraint("Equal", 6, 0),
    Sketcher.Constraint("Radius", 1, 11.1),
    Sketcher.Constraint("DistanceX", 2, 1, 2, 2, 61.8),
])
pad3 = doc.addObject("PartDesign::Pad", "Pad002")
body3.addObject(pad3)
pad3.Profile = sketch7
pad3.Type = "TwoLengths"
pad3.Length = 20
pad3.Length2 = 0.8
doc.recompute()

chamfer3 = doc.addObject("PartDesign::Chamfer", "Chamfer002")
body3.addObject(chamfer3)
chamfer3.Base = (pad3, edges_at(pad3, [(3.251, 3.251, -0.8)]))
chamfer3.Size = 0.8

sketch8 = doc.addObject("Sketcher::SketchObject", "Sketch007")
body3.addObject(sketch8)
sketch8.AttachmentSupport = (doc.getObject("XY_Plane002"), [""])
sketch8.MapMode = "FlatFace"
sketch8.addGeometry([
    Part.Circle(V(11.1, 11.1, 0), V(0, 0, 1), 9.5),
    Part.Circle(V(31.7, 11.1, 0), V(0, 0, 1), 9.5),
    Part.Circle(V(52.3, 11.1, 0), V(0, 0, 1), 9.5),
    Part.Circle(V(72.9, 11.1, 0), V(0, 0, 1), 9.5),
    Part.Circle(V(11.1, 31.7, 0), V(0, 0, 1), 9.5),
    Part.Circle(V(31.7, 31.7, 0), V(0, 0, 1), 9.5),
    Part.Circle(V(52.3, 31.7, 0), V(0, 0, 1), 9.5),
    Part.Circle(V(72.9, 31.7, 0), V(0, 0, 1), 9.5),
    Part.Circle(V(11.1, 52.3, 0), V(0, 0, 1), 9.5),
    Part.Circle(V(31.7, 52.3, 0), V(0, 0, 1), 9.5),
    Part.Circle(V(52.3, 52.3, 0), V(0, 0, 1), 9.5),
    Part.Circle(V(72.9, 52.3, 0), V(0, 0, 1), 9.5),
    Part.Circle(V(72.9, 72.9, 0), V(0, 0, 1), 9.5),
    Part.Circle(V(52.3, 72.9, 0), V(0, 0, 1), 9.5),
    Part.Circle(V(31.7, 72.9, 0), V(0, 0, 1), 9.5),
    Part.Circle(V(11.1, 72.9, 0), V(0, 0, 1), 9.5),
], False)
sketch8.addConstraint([
    Sketcher.Constraint("Equal", 0, 1),
    Sketcher.Constraint("Equal", 1, 2),
    Sketcher.Constraint("Equal", 2, 3),
    Sketcher.Constraint("Equal", 3, 4),
    Sketcher.Constraint("Equal", 4, 5),
    Sketcher.Constraint("Equal", 5, 6),
    Sketcher.Constraint("Equal", 6, 7),
    Sketcher.Constraint("Equal", 7, 8),
    Sketcher.Constraint("Equal", 8, 9),
    Sketcher.Constraint("Equal", 9, 10),
    Sketcher.Constraint("Equal", 10, 11),
    Sketcher.Constraint("Equal", 11, 12),
    Sketcher.Constraint("Equal", 12, 13),
    Sketcher.Constraint("Equal", 13, 14),
    Sketcher.Constraint("Equal", 14, 15),
    Sketcher.Constraint("Horizontal", 0, 3, 1, 3),
    Sketcher.Constraint("Horizontal", 1, 3, 2, 3),
    Sketcher.Constraint("Horizontal", 2, 3, 3, 3),
    Sketcher.Constraint("Horizontal", 4, 3, 5, 3),
    Sketcher.Constraint("Horizontal", 5, 3, 6, 3),
    Sketcher.Constraint("Horizontal", 6, 3, 7, 3),
    Sketcher.Constraint("Horizontal", 8, 3, 9, 3),
    Sketcher.Constraint("Horizontal", 9, 3, 10, 3),
    Sketcher.Constraint("Horizontal", 10, 3, 11, 3),
    Sketcher.Constraint("Horizontal", 12, 3, 13, 3),
    Sketcher.Constraint("Horizontal", 13, 3, 14, 3),
    Sketcher.Constraint("Horizontal", 14, 3, 15, 3),
    Sketcher.Constraint("Vertical", 0, 3, 4, 3),
    Sketcher.Constraint("Vertical", 1, 3, 5, 3),
    Sketcher.Constraint("Vertical", 2, 3, 6, 3),
    Sketcher.Constraint("Vertical", 3, 3, 7, 3),
    Sketcher.Constraint("Vertical", 4, 3, 8, 3),
    Sketcher.Constraint("Vertical", 5, 3, 9, 3),
    Sketcher.Constraint("Vertical", 6, 3, 10, 3),
    Sketcher.Constraint("Vertical", 7, 3, 11, 3),
    Sketcher.Constraint("Vertical", 11, 3, 12, 3),
    Sketcher.Constraint("Vertical", 10, 3, 13, 3),
    Sketcher.Constraint("Vertical", 9, 3, 14, 3),
    Sketcher.Constraint("Vertical", 8, 3, 15, 3),
    Sketcher.Constraint("Diameter", 0, 19.0),
    Sketcher.Constraint("DistanceX", -1, 1, 0, 3, 11.1),
    Sketcher.Constraint("DistanceY", -1, 1, 0, 3, 11.1),
    Sketcher.Constraint("DistanceX", -1, 1, 1, 3, 31.7),
    Sketcher.Constraint("DistanceX", -1, 1, 2, 3, 52.3),
    Sketcher.Constraint("DistanceX", -1, 1, 3, 3, 72.9),
    Sketcher.Constraint("DistanceY", -1, 1, 4, 3, 31.7),
    Sketcher.Constraint("DistanceY", -1, 1, 8, 3, 52.3),
    Sketcher.Constraint("DistanceY", -1, 1, 12, 3, 72.9),
])
pocket5 = doc.addObject("PartDesign::Pocket", "Pocket004")
body3.addObject(pocket5)
pocket5.Profile = sketch8
pocket5.Type = "ThroughAll"
pocket5.Reversed = True

sketch9 = doc.addObject("Sketcher::SketchObject", "Sketch008")
body3.addObject(sketch9)
sketch9.AttachmentSupport = (doc.getObject("XY_Plane002"), [""])
sketch9.MapMode = "FlatFace"
sketch9.addGeometry([
    Part.LineSegment(V(11.08, 84, 0), V(11.08, 20.599979, 0)),
    Part.LineSegment(V(11.08, 20.599979, 0), V(11.12, 20.599979, 0)),
    Part.LineSegment(V(11.12, 20.599979, 0), V(11.12, 84, 0)),
    Part.LineSegment(V(11.12, 84, 0), V(11.08, 84, 0)),
    Part.LineSegment(V(20.599979, 11.12, 0), V(20.599979, 11.08, 0)),
    Part.LineSegment(V(20.599979, 11.08, 0), V(63.400021, 11.08, 0)),
    Part.LineSegment(V(63.400021, 11.08, 0), V(63.400021, 11.12, 0)),
    Part.LineSegment(V(63.400021, 11.12, 0), V(20.599979, 11.12, 0)),
    Part.LineSegment(V(72.88, 63.400021, 0), V(72.88, 20.599979, 0)),
    Part.LineSegment(V(72.88, 20.599979, 0), V(72.92, 20.599979, 0)),
    Part.LineSegment(V(72.92, 20.599979, 0), V(72.92, 63.400021, 0)),
    Part.LineSegment(V(72.92, 63.400021, 0), V(72.88, 63.400021, 0)),
    Part.LineSegment(V(41.199979, 72.92, 0), V(41.199979, 72.88, 0)),
    Part.LineSegment(V(41.199979, 72.88, 0), V(63.400021, 72.88, 0)),
    Part.LineSegment(V(63.400021, 72.88, 0), V(63.400021, 72.92, 0)),
    Part.LineSegment(V(63.400021, 72.92, 0), V(41.199979, 72.92, 0)),
    Part.LineSegment(V(31.68, 63.400021, 0), V(31.68, 41.199979, 0)),
    Part.LineSegment(V(31.68, 41.199979, 0), V(31.72, 41.199979, 0)),
    Part.LineSegment(V(31.72, 41.199979, 0), V(31.72, 63.400021, 0)),
    Part.LineSegment(V(31.72, 63.400021, 0), V(31.68, 63.400021, 0)),
    Part.LineSegment(V(41.199979, 31.72, 0), V(41.199979, 31.68, 0)),
    Part.LineSegment(V(41.199979, 31.68, 0), V(42.800021, 31.68, 0)),
    Part.LineSegment(V(42.800021, 31.68, 0), V(42.800021, 31.72, 0)),
    Part.LineSegment(V(42.800021, 31.72, 0), V(41.199979, 31.72, 0)),
    Part.LineSegment(V(52.28, 42.800021, 0), V(52.28, 41.199979, 0)),
    Part.LineSegment(V(52.28, 41.199979, 0), V(52.32, 41.199979, 0)),
    Part.LineSegment(V(52.32, 41.199979, 0), V(52.32, 42.800021, 0)),
    Part.LineSegment(V(52.32, 42.800021, 0), V(52.28, 42.800021, 0)),
], False)
sketch9.addConstraint([
    Sketcher.Constraint("Coincident", 0, 2, 1, 1),
    Sketcher.Constraint("Coincident", 1, 2, 2, 1),
    Sketcher.Constraint("Coincident", 2, 2, 3, 1),
    Sketcher.Constraint("Coincident", 3, 2, 0, 1),
    Sketcher.Constraint("Coincident", 4, 2, 5, 1),
    Sketcher.Constraint("Coincident", 5, 2, 6, 1),
    Sketcher.Constraint("Coincident", 6, 2, 7, 1),
    Sketcher.Constraint("Coincident", 7, 2, 4, 1),
    Sketcher.Constraint("Coincident", 8, 2, 9, 1),
    Sketcher.Constraint("Coincident", 9, 2, 10, 1),
    Sketcher.Constraint("Coincident", 10, 2, 11, 1),
    Sketcher.Constraint("Coincident", 11, 2, 8, 1),
    Sketcher.Constraint("Coincident", 12, 2, 13, 1),
    Sketcher.Constraint("Coincident", 13, 2, 14, 1),
    Sketcher.Constraint("Coincident", 14, 2, 15, 1),
    Sketcher.Constraint("Coincident", 15, 2, 12, 1),
    Sketcher.Constraint("Coincident", 16, 2, 17, 1),
    Sketcher.Constraint("Coincident", 17, 2, 18, 1),
    Sketcher.Constraint("Coincident", 18, 2, 19, 1),
    Sketcher.Constraint("Coincident", 19, 2, 16, 1),
    Sketcher.Constraint("Coincident", 20, 2, 21, 1),
    Sketcher.Constraint("Coincident", 21, 2, 22, 1),
    Sketcher.Constraint("Coincident", 22, 2, 23, 1),
    Sketcher.Constraint("Coincident", 23, 2, 20, 1),
    Sketcher.Constraint("Coincident", 24, 2, 25, 1),
    Sketcher.Constraint("Coincident", 25, 2, 26, 1),
    Sketcher.Constraint("Coincident", 26, 2, 27, 1),
    Sketcher.Constraint("Coincident", 27, 2, 24, 1),
    Sketcher.Constraint("Vertical", 0),
    Sketcher.Constraint("Horizontal", 1),
    Sketcher.Constraint("Vertical", 2),
    Sketcher.Constraint("Horizontal", 3),
    Sketcher.Constraint("Vertical", 4),
    Sketcher.Constraint("Horizontal", 5),
    Sketcher.Constraint("Vertical", 6),
    Sketcher.Constraint("Horizontal", 7),
    Sketcher.Constraint("Vertical", 8),
    Sketcher.Constraint("Horizontal", 9),
    Sketcher.Constraint("Vertical", 10),
    Sketcher.Constraint("Horizontal", 11),
    Sketcher.Constraint("Vertical", 12),
    Sketcher.Constraint("Horizontal", 13),
    Sketcher.Constraint("Vertical", 14),
    Sketcher.Constraint("Horizontal", 15),
    Sketcher.Constraint("Vertical", 16),
    Sketcher.Constraint("Horizontal", 17),
    Sketcher.Constraint("Vertical", 18),
    Sketcher.Constraint("Horizontal", 19),
    Sketcher.Constraint("Vertical", 20),
    Sketcher.Constraint("Horizontal", 21),
    Sketcher.Constraint("Vertical", 22),
    Sketcher.Constraint("Horizontal", 23),
    Sketcher.Constraint("Vertical", 24),
    Sketcher.Constraint("Horizontal", 25),
    Sketcher.Constraint("Vertical", 26),
    Sketcher.Constraint("Horizontal", 27),
    Sketcher.Constraint("Horizontal", 1, 2, 8, 2),
    Sketcher.Constraint("Horizontal", 11, 2, 18, 2),
    Sketcher.Constraint("Horizontal", 17, 2, 24, 2),
    Sketcher.Constraint("Vertical", 6, 2, 13, 2),
    Sketcher.Constraint("Vertical", 15, 2, 20, 2),
    Sketcher.Constraint("Equal", 3, 9),
    Sketcher.Constraint("Equal", 11, 17),
    Sketcher.Constraint("Equal", 19, 25),
    Sketcher.Constraint("Equal", 27, 4),
    Sketcher.Constraint("Equal", 7, 8),
    Sketcher.Constraint("Equal", 6, 12),
    Sketcher.Constraint("Equal", 15, 16),
    Sketcher.Constraint("Equal", 14, 20),
    Sketcher.Constraint("Equal", 23, 24),
    Sketcher.Constraint("DistanceY", -1, 1, 2, 2, 84.0),
    Sketcher.Constraint("DistanceX", 1, 1, 1, 2, 0.04),
    Sketcher.Constraint("DistanceX", 2, 2, 10, 2, 61.8),
    Sketcher.Constraint("DistanceY", 1, 2, 16, 2, 20.6),
    Sketcher.Constraint("DistanceX", 0, 2, 16, 2, 20.6),
    Sketcher.Constraint("DistanceY", 4, 2, 20, 2, 20.6),
    Sketcher.Constraint("DistanceX", 21, 2, 6, 2, 20.6),
    Sketcher.Constraint("DistanceX", -1, 1, 0, 2, 11.08),
    Sketcher.Constraint("DistanceY", -1, 1, 4, 2, 11.08),
    Sketcher.Constraint("DistanceY", -1, 1, 12, 2, 72.88),
    Sketcher.Constraint("DistanceX", -1, 1, 24, 2, 52.28),
    Sketcher.Constraint("DistanceY", 0, 2, 0, 1, 63.400021),
    Sketcher.Constraint("DistanceX", 5, 1, 5, 2, 42.800042),
    Sketcher.Constraint("DistanceX", -1, 1, 4, 2, 20.599979),
])
pocket6 = doc.addObject("PartDesign::Pocket", "Pocket005")
body3.addObject(pocket6)
pocket6.Profile = sketch9
pocket6.Type = "ThroughAll"
pocket6.Reversed = True

doc.recompute()
